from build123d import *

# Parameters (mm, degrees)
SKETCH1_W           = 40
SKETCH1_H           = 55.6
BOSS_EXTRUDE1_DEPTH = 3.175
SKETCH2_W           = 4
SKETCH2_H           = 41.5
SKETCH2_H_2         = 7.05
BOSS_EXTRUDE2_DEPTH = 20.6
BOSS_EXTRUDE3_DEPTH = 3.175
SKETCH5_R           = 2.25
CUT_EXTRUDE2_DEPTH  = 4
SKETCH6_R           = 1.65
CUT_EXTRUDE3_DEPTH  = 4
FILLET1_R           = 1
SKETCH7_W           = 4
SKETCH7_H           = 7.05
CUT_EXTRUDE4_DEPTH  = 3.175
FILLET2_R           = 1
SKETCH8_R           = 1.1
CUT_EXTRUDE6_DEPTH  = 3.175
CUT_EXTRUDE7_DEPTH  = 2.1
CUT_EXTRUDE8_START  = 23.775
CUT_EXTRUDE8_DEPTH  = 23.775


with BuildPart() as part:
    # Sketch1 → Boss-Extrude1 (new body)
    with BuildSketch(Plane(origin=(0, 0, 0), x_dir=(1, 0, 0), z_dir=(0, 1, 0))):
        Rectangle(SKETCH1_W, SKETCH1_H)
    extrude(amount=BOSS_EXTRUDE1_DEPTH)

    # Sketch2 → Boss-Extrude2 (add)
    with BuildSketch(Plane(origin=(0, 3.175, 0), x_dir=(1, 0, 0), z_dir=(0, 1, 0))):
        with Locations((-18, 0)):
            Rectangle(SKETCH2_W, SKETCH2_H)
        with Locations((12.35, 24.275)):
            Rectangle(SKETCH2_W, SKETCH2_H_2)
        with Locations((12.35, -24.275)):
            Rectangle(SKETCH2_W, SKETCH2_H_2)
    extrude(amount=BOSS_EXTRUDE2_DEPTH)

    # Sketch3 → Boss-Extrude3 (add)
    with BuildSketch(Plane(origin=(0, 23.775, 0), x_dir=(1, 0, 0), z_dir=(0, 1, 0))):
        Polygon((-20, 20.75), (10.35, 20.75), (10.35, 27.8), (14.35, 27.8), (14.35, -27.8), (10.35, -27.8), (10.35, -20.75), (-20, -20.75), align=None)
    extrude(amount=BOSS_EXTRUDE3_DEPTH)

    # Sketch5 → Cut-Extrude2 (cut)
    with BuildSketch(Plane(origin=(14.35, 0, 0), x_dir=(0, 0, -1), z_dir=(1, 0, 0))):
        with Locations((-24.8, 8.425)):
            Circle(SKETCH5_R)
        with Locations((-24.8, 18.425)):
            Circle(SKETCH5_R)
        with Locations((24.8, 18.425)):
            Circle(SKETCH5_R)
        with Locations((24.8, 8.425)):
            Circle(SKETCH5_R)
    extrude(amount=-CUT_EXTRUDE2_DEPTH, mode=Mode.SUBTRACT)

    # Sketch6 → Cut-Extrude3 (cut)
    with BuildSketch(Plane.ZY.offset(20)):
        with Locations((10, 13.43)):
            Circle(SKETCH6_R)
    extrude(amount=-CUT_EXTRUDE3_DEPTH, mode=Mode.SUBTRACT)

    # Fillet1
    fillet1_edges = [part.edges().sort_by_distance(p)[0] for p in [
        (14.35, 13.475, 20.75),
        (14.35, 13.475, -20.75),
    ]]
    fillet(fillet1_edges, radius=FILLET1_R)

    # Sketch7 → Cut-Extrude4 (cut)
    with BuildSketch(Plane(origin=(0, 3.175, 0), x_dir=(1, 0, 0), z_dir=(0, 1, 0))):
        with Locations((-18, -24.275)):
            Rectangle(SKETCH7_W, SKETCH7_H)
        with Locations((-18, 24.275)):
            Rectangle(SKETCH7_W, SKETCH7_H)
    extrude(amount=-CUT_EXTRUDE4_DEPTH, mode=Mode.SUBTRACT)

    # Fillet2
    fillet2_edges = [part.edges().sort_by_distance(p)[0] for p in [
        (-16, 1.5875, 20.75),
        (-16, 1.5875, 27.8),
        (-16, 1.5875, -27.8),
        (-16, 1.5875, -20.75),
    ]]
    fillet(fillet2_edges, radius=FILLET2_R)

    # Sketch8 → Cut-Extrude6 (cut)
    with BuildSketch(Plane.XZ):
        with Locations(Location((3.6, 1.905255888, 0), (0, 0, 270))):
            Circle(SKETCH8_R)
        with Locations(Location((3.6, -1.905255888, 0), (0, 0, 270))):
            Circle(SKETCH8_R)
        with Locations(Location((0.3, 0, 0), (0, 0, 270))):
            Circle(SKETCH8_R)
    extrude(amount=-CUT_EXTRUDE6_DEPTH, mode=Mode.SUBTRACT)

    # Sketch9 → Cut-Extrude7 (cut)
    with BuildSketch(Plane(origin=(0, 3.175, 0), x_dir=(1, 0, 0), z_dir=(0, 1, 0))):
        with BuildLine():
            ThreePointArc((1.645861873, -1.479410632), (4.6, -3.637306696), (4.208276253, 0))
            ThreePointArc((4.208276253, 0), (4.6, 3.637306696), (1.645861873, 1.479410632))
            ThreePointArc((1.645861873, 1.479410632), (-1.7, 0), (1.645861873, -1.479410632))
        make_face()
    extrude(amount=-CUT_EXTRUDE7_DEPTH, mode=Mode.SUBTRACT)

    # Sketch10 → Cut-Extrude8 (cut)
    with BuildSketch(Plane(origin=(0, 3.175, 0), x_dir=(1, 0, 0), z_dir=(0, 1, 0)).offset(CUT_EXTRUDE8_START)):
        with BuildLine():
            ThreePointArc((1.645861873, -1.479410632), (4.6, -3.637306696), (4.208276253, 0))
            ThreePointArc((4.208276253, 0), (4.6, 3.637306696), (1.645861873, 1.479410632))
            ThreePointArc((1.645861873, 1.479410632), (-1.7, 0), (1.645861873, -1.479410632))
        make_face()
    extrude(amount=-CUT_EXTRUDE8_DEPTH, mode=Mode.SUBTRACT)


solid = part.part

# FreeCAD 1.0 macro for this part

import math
import FreeCAD as App
import Part
import Sketcher
from FreeCAD import Vector
Q = App.Units.Quantity


def edges_at(feature, points):
    """Names of the edges that pass closest to the given points."""
    edges = feature.Shape.Edges
    near = lambda p: min(range(len(edges)), key=lambda i: edges[i].distToShape(Part.Vertex(*p))[0])
    return sorted({f"Edge{near(p) + 1}" for p in points})


def add_polygon(sketch, points):
    """Adds a closed chain of lines whose ends are joined by coincident constraints."""
    first, n = sketch.GeometryCount, len(points)
    for a, b in zip(points, points[1:] + points[:1]):
        sketch.addGeometry(Part.LineSegment(App.Vector(*a, 0), App.Vector(*b, 0)), False)
    for i in range(n):
        sketch.addConstraint(Sketcher.Constraint("Coincident", first + i, 2, first + (i + 1) % n, 1))

doc = App.newDocument("Part")
body = doc.addObject("PartDesign::Body", "Body")

# Sketch on XZ plane
sketch1 = doc.addObject("Sketcher::SketchObject", "Sketch")
body.addObject(sketch1)
sketch1.AttachmentSupport = (doc.XZ_Plane, [""])
sketch1.MapMode = "FlatFace"
add_polygon(sketch1, [(-20, -27.8), (-20, 27.8), (20, 27.8), (20, -27.8)])  # lines 0-3
sketch1.addConstraint([
    Sketcher.Constraint("Vertical", 0),
    Sketcher.Constraint("Horizontal", 1),
    Sketcher.Constraint("Vertical", 2),
    Sketcher.Constraint("Horizontal", 3),
    Sketcher.Constraint("Symmetric", 0, 2, 2, 2, -1, 1),
    Sketcher.Constraint("DistanceX", 1, 1, 1, 2, Q("40 mm")),
    Sketcher.Constraint("DistanceY", 0, 1, 0, 2, Q("55.6 mm")),
])
pad1 = doc.addObject("PartDesign::Pad", "Pad")
body.addObject(pad1)
pad1.Profile = sketch1
pad1.Length = 3.175
pad1.Reversed = True

# Sketch on XZ plane
sketch2 = doc.addObject("Sketcher::SketchObject", "Sketch001")
body.addObject(sketch2)
sketch2.AttachmentSupport = (doc.XZ_Plane, [""])
sketch2.MapMode = "FlatFace"
sketch2.AttachmentOffset = App.Placement(Vector(0, 0, -3.175), App.Rotation())
add_polygon(sketch2, [(-20, -20.75), (-20, 20.75), (-16, 20.75), (-16, -20.75)])  # lines 0-3
add_polygon(sketch2, [(10.35, -27.8), (10.35, -20.75), (14.35, -20.75), (14.35, -27.8)])  # lines 4-7
add_polygon(sketch2, [(10.35, 20.75), (10.35, 27.8), (14.35, 27.8), (14.35, 20.75)])  # lines 8-11
sketch2.addConstraint([
    Sketcher.Constraint("Vertical", 0),
    Sketcher.Constraint("Horizontal", 1),
    Sketcher.Constraint("Vertical", 2),
    Sketcher.Constraint("Horizontal", 3),
    Sketcher.Constraint("Vertical", 4),
    Sketcher.Constraint("Horizontal", 5),
    Sketcher.Constraint("Vertical", 6),
    Sketcher.Constraint("Horizontal", 7),
    Sketcher.Constraint("Vertical", 8),
    Sketcher.Constraint("Horizontal", 9),
    Sketcher.Constraint("Vertical", 10),
    Sketcher.Constraint("Horizontal", 11),
    Sketcher.Constraint("Symmetric", 7, 2, 8, 2, -1),
    Sketcher.Constraint("Symmetric", 5, 2, 10, 2, -1),
    Sketcher.Constraint("Horizontal", 3, 2, 4, 2),
    Sketcher.Constraint("Horizontal", 1, 2, 10, 2),
    Sketcher.Constraint("Equal", 3, 5),
    Sketcher.Constraint("DistanceX", 1, 1, 1, 2, Q("4 mm")),
    Sketcher.Constraint("DistanceY", 0, 1, 0, 2, Q("41.5 mm")),
    Sketcher.Constraint("DistanceX", 0, 2, -1, 1, Q("20 mm")),
    Sketcher.Constraint("DistanceY", 4, 1, 4, 2, Q("7.05 mm")),
    Sketcher.Constraint("DistanceX", -1, 1, 4, 2, Q("10.35 mm")),
])
pad2 = doc.addObject("PartDesign::Pad", "Pad001")
body.addObject(pad2)
pad2.Profile = sketch2
pad2.Length = 20.6
pad2.Reversed = True

# Sketch on XZ plane
sketch3 = doc.addObject("Sketcher::SketchObject", "Sketch002")
body.addObject(sketch3)
sketch3.AttachmentSupport = (doc.XZ_Plane, [""])
sketch3.MapMode = "FlatFace"
sketch3.AttachmentOffset = App.Placement(Vector(0, 0, -23.775), App.Rotation())
add_polygon(sketch3, [(10.35, -20.75), (-20, -20.75), (-20, 20.75), (10.35, 20.75), (10.35, 27.8), (14.35, 27.8), (14.35, -27.8), (10.35, -27.8)])  # lines 0-7
sketch3.addConstraint([
    Sketcher.Constraint("Horizontal", 0),
    Sketcher.Constraint("Vertical", 1),
    Sketcher.Constraint("Horizontal", 2),
    Sketcher.Constraint("Vertical", 3),
    Sketcher.Constraint("Horizontal", 4),
    Sketcher.Constraint("Vertical", 5),
    Sketcher.Constraint("Horizontal", 6),
    Sketcher.Constraint("Vertical", 7),
    Sketcher.Constraint("Symmetric", 3, 2, 6, 2, -1),
    Sketcher.Constraint("Equal", 3, 7),
    Sketcher.Constraint("DistanceX", 4, 1, 4, 2, Q("4 mm")),
    Sketcher.Constraint("DistanceY", 1, 1, 1, 2, Q("41.5 mm")),
    Sketcher.Constraint("DistanceY", 5, 2, 5, 1, Q("55.6 mm")),
    Sketcher.Constraint("DistanceX", 0, 2, -1, 1, Q("20 mm")),
    Sketcher.Constraint("DistanceX", 0, 2, 0, 1, Q("30.35 mm")),
])
pad3 = doc.addObject("PartDesign::Pad", "Pad002")
body.addObject(pad3)
pad3.Profile = sketch3
pad3.Length = 3.175
pad3.Reversed = True

# Sketch on YZ plane
sketch4 = doc.addObject("Sketcher::SketchObject", "Sketch003")
body.addObject(sketch4)
sketch4.AttachmentSupport = (doc.YZ_Plane, [""])
sketch4.MapMode = "FlatFace"
sketch4.AttachmentOffset = App.Placement(Vector(0, 0, 14.35), App.Rotation())
sketch4.addGeometry([
    Part.Circle(Vector(8.425, 24.8, 0), Vector(0, 0, 1), 2.25),
    Part.Circle(Vector(18.425, 24.8, 0), Vector(0, 0, 1), 2.25),
    Part.Circle(Vector(18.425, -24.8, 0), Vector(0, 0, 1), 2.25),
    Part.Circle(Vector(8.425, -24.8, 0), Vector(0, 0, 1), 2.25),
], False)
sketch4.addConstraint([
    Sketcher.Constraint("Equal", 0, 1),
    Sketcher.Constraint("Equal", 1, 2),
    Sketcher.Constraint("Equal", 2, 3),
    Sketcher.Constraint("Symmetric", 1, 3, 2, 3, -1),
    Sketcher.Constraint("Symmetric", 0, 3, 3, 3, -1),
    Sketcher.Constraint("Horizontal", 0, 3, 1, 3),
    Sketcher.Constraint("Diameter", 0, Q("4.5 mm")),
    Sketcher.Constraint("DistanceX", 0, 3, 1, 3, Q("10 mm")),
    Sketcher.Constraint("DistanceY", -1, 1, 0, 3, Q("24.8 mm")),
    Sketcher.Constraint("DistanceX", -1, 1, 0, 3, Q("8.425 mm")),
])
pocket1 = doc.addObject("PartDesign::Pocket", "Pocket")
body.addObject(pocket1)
pocket1.Profile = sketch4
pocket1.Length = 4

# Sketch on YZ plane
sketch5 = doc.addObject("Sketcher::SketchObject", "Sketch004")
body.addObject(sketch5)
sketch5.AttachmentSupport = (doc.YZ_Plane, [""])
sketch5.MapMode = "FlatFace"
sketch5.AttachmentOffset = App.Placement(Vector(0, 0, -20), App.Rotation())
sketch5.addGeometry(Part.Circle(Vector(13.43, 10, 0), Vector(0, 0, 1), 1.65), False)
sketch5.addConstraint([
    Sketcher.Constraint("Diameter", 0, Q("3.3 mm")),
    Sketcher.Constraint("DistanceY", -1, 1, 0, 3, Q("10 mm")),
    Sketcher.Constraint("DistanceX", -1, 1, 0, 3, Q("13.43 mm")),
])
pocket2 = doc.addObject("PartDesign::Pocket", "Pocket001")
body.addObject(pocket2)
pocket2.Profile = sketch5
pocket2.Length = 4
pocket2.Reversed = True
doc.recompute()

fillet = doc.addObject("PartDesign::Fillet", "Fillet")
body.addObject(fillet)
fillet.Base = (pocket2, edges_at(pocket2, [(14.35, 13.475, 20.75), (14.35, 13.475, -20.75)]))
fillet.Radius = 1

# Sketch on XZ plane
sketch6 = doc.addObject("Sketcher::SketchObject", "Sketch005")
body.addObject(sketch6)
sketch6.AttachmentSupport = (doc.XZ_Plane, [""])
sketch6.MapMode = "FlatFace"
sketch6.AttachmentOffset = App.Placement(Vector(0, 0, -3.175), App.Rotation())
add_polygon(sketch6, [(-20, 20.75), (-20, 27.8), (-16, 27.8), (-16, 20.75)])  # lines 0-3
add_polygon(sketch6, [(-20, -27.8), (-20, -20.75), (-16, -20.75), (-16, -27.8)])  # lines 4-7
sketch6.addConstraint([
    Sketcher.Constraint("Vertical", 0),
    Sketcher.Constraint("Horizontal", 1),
    Sketcher.Constraint("Vertical", 2),
    Sketcher.Constraint("Horizontal", 3),
    Sketcher.Constraint("Vertical", 4),
    Sketcher.Constraint("Horizontal", 5),
    Sketcher.Constraint("Vertical", 6),
    Sketcher.Constraint("Horizontal", 7),
    Sketcher.Constraint("Symmetric", 3, 2, 4, 2, -1),
    Sketcher.Constraint("Symmetric", 1, 2, 6, 2, -1),
    Sketcher.Constraint("DistanceX", 1, 1, 1, 2, Q("4 mm")),
    Sketcher.Constraint("DistanceX", 0, 2, -1, 1, Q("20 mm")),
    Sketcher.Constraint("DistanceY", 0, 1, 0, 2, Q("7.05 mm")),
    Sketcher.Constraint("DistanceY", -1, 1, 0, 2, Q("27.8 mm")),
])
pocket3 = doc.addObject("PartDesign::Pocket", "Pocket002")
body.addObject(pocket3)
pocket3.Profile = sketch6
pocket3.Length = 3.175
pocket3.Reversed = True
doc.recompute()

fillet2 = doc.addObject("PartDesign::Fillet", "Fillet001")
body.addObject(fillet2)
fillet2.Base = (pocket3, edges_at(pocket3, [
    (-16, 1.587, 20.75),
    (-16, 1.587, 27.8),
    (-16, 1.587, -27.8),
    (-16, 1.587, -20.75),
]))
fillet2.Radius = 1

# Sketch on XZ plane
sketch7 = doc.addObject("Sketcher::SketchObject", "Sketch006")
body.addObject(sketch7)
sketch7.AttachmentSupport = (doc.XZ_Plane, [""])
sketch7.MapMode = "FlatFace"
sketch7.addGeometry([
    Part.Circle(Vector(3.6, 1.905256, 0), Vector(0, 0, 1), 1.1),
    Part.Circle(Vector(3.6, -1.905256, 0), Vector(0, 0, 1), 1.1),
    Part.Circle(Vector(0.3, 0, 0), Vector(0, 0, 1), 1.1),
], False)
sketch7.addConstraint([
    Sketcher.Constraint("Equal", 0, 1),
    Sketcher.Constraint("Equal", 1, 2),
    Sketcher.Constraint("Symmetric", 0, 3, 1, 3, -1),
    Sketcher.Constraint("PointOnObject", 2, 3, -1),
    Sketcher.Constraint("Diameter", 0, Q("2.2 mm")),
    Sketcher.Constraint("DistanceX", -1, 1, 0, 3, Q("3.6 mm")),
    Sketcher.Constraint("DistanceX", -1, 1, 2, 3, Q("0.3 mm")),
    Sketcher.Constraint("DistanceY", 1, 3, 0, 3, Q("3.810512 mm")),
])
pocket4 = doc.addObject("PartDesign::Pocket", "Pocket003")
body.addObject(pocket4)
pocket4.Profile = sketch7
pocket4.Length = 3.175

# Sketch on XZ plane
sketch8 = doc.addObject("Sketcher::SketchObject", "Sketch007")
body.addObject(sketch8)
sketch8.AttachmentSupport = (doc.XZ_Plane, [""])
sketch8.MapMode = "FlatFace"
sketch8.AttachmentOffset = App.Placement(Vector(0, 0, -3.175), App.Rotation())
sketch8.addGeometry([
    Part.ArcOfCircle(Part.Circle(Vector(3.6, 1.905256, 0), Vector(0, 0, 1), 2), math.radians(-72.293681), math.radians(192.293681)),
    Part.ArcOfCircle(Part.Circle(Vector(3.6, -1.905256, 0), Vector(0, 0, 1), 2), math.radians(167.706319), math.radians(432.293681)),
    Part.ArcOfCircle(Part.Circle(Vector(0.3, 0, 0), Vector(0, 0, 1), 2), math.radians(47.706319), math.radians(312.293681)),
], False)
sketch8.addConstraint([
    Sketcher.Constraint("Coincident", 0, 1, 1, 2),
    Sketcher.Constraint("Coincident", 1, 1, 2, 2),
    Sketcher.Constraint("Coincident", 2, 1, 0, 2),
    Sketcher.Constraint("Equal", 0, 1),
    Sketcher.Constraint("Equal", 1, 2),
    Sketcher.Constraint("Symmetric", 0, 3, 1, 3, -1),
    Sketcher.Constraint("PointOnObject", 2, 3, -1),
    Sketcher.Constraint("Radius", 0, Q("2 mm")),
    Sketcher.Constraint("DistanceX", -1, 1, 0, 3, Q("3.6 mm")),
    Sketcher.Constraint("DistanceX", -1, 1, 2, 3, Q("0.3 mm")),
    Sketcher.Constraint("DistanceX", -1, 1, 1, 1, Q("1.645862 mm")),
])
pocket5 = doc.addObject("PartDesign::Pocket", "Pocket004")
body.addObject(pocket5)
pocket5.Profile = sketch8
pocket5.Length = 2.1
pocket5.Reversed = True

# Sketch on XZ plane
sketch9 = doc.addObject("Sketcher::SketchObject", "Sketch008")
body.addObject(sketch9)
sketch9.AttachmentSupport = (doc.XZ_Plane, [""])
sketch9.MapMode = "FlatFace"
sketch9.AttachmentOffset = App.Placement(Vector(0, 0, -26.95), App.Rotation())
sketch9.addGeometry([
    Part.ArcOfCircle(Part.Circle(Vector(3.6, 1.905256, 0), Vector(0, 0, 1), 2), math.radians(-72.293681), math.radians(192.293681)),
    Part.ArcOfCircle(Part.Circle(Vector(3.6, -1.905256, 0), Vector(0, 0, 1), 2), math.radians(167.706319), math.radians(432.293681)),
    Part.ArcOfCircle(Part.Circle(Vector(0.3, 0, 0), Vector(0, 0, 1), 2), math.radians(47.706319), math.radians(312.293681)),
], False)
sketch9.addConstraint([
    Sketcher.Constraint("Coincident", 0, 1, 1, 2),
    Sketcher.Constraint("Coincident", 1, 1, 2, 2),
    Sketcher.Constraint("Coincident", 2, 1, 0, 2),
    Sketcher.Constraint("Equal", 0, 1),
    Sketcher.Constraint("Equal", 1, 2),
    Sketcher.Constraint("Symmetric", 0, 3, 1, 3, -1),
    Sketcher.Constraint("PointOnObject", 2, 3, -1),
    Sketcher.Constraint("Radius", 0, Q("2 mm")),
    Sketcher.Constraint("DistanceX", -1, 1, 0, 3, Q("3.6 mm")),
    Sketcher.Constraint("DistanceX", -1, 1, 2, 3, Q("0.3 mm")),
    Sketcher.Constraint("DistanceX", -1, 1, 1, 1, Q("1.645862 mm")),
])
pocket6 = doc.addObject("PartDesign::Pocket", "Pocket005")
body.addObject(pocket6)
pocket6.Profile = sketch9
pocket6.Length = 23.775
pocket6.Reversed = True

doc.recompute()
